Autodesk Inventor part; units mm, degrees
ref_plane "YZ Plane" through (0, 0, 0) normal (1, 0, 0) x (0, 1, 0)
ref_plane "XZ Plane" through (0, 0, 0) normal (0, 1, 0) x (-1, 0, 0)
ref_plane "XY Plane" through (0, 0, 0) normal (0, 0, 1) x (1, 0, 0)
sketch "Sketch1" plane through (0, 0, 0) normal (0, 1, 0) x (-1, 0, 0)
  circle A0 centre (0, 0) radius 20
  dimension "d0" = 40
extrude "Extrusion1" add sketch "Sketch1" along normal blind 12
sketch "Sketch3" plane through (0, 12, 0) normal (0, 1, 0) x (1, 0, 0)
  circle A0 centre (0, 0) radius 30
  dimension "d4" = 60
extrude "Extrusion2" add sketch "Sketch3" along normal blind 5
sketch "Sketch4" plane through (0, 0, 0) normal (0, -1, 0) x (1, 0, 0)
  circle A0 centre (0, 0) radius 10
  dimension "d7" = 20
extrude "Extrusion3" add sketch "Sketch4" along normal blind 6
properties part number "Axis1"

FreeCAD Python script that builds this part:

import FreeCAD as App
import Part
import Sketcher
from FreeCAD import Vector
Q = App.Units.Quantity

doc = App.newDocument("Part")
body = doc.addObject("PartDesign::Body", "Body")

sketch1 = body.newObject("Sketcher::SketchObject", "Sketch")
sketch1.AttachmentSupport = (doc.getObject("XZ_Plane"), [""])
sketch1.MapMode = "FlatFace"
sketch1.addGeometry(Part.Circle(Vector(0, 0, 0), Vector(0, 0, 1), 20), False)
sketch1.addConstraint([
    Sketcher.Constraint("Coincident", 0, 3, -1, 1),
    Sketcher.Constraint("Diameter", 0, Q("40 mm")),
])
pad1 = body.newObject("PartDesign::Pad", "Pad")
pad1.Profile = sketch1
pad1.Length = 12
pad1.Reversed = True

sketch2 = body.newObject("Sketcher::SketchObject", "Sketch001")
sketch2.AttachmentSupport = (doc.getObject("XZ_Plane"), [""])
sketch2.MapMode = "FlatFace"
sketch2.AttachmentOffset = App.Placement(Vector(0, 0, -12), App.Rotation())
sketch2.addGeometry(Part.Circle(Vector(0, 0, 0), Vector(0, 0, 1), 30), False)
sketch2.addConstraint([
    Sketcher.Constraint("Coincident", 0, 3, -1, 1),
    Sketcher.Constraint("Diameter", 0, Q("60 mm")),
])
pad2 = body.newObject("PartDesign::Pad", "Pad001")
pad2.Profile = sketch2
pad2.Length = 5
pad2.Reversed = True

sketch3 = body.newObject("Sketcher::SketchObject", "Sketch002")
sketch3.AttachmentSupport = (doc.getObject("XZ_Plane"), [""])
sketch3.MapMode = "FlatFace"
sketch3.addGeometry(Part.Circle(Vector(0, 0, 0), Vector(0, 0, 1), 10), False)
sketch3.addConstraint([
    Sketcher.Constraint("Coincident", 0, 3, -1, 1),
    Sketcher.Constraint("Diameter", 0, Q("20 mm")),
])
pad3 = body.newObject("PartDesign::Pad", "Pad002")
pad3.Profile = sketch3
pad3.Length = 6

doc.recompute()
